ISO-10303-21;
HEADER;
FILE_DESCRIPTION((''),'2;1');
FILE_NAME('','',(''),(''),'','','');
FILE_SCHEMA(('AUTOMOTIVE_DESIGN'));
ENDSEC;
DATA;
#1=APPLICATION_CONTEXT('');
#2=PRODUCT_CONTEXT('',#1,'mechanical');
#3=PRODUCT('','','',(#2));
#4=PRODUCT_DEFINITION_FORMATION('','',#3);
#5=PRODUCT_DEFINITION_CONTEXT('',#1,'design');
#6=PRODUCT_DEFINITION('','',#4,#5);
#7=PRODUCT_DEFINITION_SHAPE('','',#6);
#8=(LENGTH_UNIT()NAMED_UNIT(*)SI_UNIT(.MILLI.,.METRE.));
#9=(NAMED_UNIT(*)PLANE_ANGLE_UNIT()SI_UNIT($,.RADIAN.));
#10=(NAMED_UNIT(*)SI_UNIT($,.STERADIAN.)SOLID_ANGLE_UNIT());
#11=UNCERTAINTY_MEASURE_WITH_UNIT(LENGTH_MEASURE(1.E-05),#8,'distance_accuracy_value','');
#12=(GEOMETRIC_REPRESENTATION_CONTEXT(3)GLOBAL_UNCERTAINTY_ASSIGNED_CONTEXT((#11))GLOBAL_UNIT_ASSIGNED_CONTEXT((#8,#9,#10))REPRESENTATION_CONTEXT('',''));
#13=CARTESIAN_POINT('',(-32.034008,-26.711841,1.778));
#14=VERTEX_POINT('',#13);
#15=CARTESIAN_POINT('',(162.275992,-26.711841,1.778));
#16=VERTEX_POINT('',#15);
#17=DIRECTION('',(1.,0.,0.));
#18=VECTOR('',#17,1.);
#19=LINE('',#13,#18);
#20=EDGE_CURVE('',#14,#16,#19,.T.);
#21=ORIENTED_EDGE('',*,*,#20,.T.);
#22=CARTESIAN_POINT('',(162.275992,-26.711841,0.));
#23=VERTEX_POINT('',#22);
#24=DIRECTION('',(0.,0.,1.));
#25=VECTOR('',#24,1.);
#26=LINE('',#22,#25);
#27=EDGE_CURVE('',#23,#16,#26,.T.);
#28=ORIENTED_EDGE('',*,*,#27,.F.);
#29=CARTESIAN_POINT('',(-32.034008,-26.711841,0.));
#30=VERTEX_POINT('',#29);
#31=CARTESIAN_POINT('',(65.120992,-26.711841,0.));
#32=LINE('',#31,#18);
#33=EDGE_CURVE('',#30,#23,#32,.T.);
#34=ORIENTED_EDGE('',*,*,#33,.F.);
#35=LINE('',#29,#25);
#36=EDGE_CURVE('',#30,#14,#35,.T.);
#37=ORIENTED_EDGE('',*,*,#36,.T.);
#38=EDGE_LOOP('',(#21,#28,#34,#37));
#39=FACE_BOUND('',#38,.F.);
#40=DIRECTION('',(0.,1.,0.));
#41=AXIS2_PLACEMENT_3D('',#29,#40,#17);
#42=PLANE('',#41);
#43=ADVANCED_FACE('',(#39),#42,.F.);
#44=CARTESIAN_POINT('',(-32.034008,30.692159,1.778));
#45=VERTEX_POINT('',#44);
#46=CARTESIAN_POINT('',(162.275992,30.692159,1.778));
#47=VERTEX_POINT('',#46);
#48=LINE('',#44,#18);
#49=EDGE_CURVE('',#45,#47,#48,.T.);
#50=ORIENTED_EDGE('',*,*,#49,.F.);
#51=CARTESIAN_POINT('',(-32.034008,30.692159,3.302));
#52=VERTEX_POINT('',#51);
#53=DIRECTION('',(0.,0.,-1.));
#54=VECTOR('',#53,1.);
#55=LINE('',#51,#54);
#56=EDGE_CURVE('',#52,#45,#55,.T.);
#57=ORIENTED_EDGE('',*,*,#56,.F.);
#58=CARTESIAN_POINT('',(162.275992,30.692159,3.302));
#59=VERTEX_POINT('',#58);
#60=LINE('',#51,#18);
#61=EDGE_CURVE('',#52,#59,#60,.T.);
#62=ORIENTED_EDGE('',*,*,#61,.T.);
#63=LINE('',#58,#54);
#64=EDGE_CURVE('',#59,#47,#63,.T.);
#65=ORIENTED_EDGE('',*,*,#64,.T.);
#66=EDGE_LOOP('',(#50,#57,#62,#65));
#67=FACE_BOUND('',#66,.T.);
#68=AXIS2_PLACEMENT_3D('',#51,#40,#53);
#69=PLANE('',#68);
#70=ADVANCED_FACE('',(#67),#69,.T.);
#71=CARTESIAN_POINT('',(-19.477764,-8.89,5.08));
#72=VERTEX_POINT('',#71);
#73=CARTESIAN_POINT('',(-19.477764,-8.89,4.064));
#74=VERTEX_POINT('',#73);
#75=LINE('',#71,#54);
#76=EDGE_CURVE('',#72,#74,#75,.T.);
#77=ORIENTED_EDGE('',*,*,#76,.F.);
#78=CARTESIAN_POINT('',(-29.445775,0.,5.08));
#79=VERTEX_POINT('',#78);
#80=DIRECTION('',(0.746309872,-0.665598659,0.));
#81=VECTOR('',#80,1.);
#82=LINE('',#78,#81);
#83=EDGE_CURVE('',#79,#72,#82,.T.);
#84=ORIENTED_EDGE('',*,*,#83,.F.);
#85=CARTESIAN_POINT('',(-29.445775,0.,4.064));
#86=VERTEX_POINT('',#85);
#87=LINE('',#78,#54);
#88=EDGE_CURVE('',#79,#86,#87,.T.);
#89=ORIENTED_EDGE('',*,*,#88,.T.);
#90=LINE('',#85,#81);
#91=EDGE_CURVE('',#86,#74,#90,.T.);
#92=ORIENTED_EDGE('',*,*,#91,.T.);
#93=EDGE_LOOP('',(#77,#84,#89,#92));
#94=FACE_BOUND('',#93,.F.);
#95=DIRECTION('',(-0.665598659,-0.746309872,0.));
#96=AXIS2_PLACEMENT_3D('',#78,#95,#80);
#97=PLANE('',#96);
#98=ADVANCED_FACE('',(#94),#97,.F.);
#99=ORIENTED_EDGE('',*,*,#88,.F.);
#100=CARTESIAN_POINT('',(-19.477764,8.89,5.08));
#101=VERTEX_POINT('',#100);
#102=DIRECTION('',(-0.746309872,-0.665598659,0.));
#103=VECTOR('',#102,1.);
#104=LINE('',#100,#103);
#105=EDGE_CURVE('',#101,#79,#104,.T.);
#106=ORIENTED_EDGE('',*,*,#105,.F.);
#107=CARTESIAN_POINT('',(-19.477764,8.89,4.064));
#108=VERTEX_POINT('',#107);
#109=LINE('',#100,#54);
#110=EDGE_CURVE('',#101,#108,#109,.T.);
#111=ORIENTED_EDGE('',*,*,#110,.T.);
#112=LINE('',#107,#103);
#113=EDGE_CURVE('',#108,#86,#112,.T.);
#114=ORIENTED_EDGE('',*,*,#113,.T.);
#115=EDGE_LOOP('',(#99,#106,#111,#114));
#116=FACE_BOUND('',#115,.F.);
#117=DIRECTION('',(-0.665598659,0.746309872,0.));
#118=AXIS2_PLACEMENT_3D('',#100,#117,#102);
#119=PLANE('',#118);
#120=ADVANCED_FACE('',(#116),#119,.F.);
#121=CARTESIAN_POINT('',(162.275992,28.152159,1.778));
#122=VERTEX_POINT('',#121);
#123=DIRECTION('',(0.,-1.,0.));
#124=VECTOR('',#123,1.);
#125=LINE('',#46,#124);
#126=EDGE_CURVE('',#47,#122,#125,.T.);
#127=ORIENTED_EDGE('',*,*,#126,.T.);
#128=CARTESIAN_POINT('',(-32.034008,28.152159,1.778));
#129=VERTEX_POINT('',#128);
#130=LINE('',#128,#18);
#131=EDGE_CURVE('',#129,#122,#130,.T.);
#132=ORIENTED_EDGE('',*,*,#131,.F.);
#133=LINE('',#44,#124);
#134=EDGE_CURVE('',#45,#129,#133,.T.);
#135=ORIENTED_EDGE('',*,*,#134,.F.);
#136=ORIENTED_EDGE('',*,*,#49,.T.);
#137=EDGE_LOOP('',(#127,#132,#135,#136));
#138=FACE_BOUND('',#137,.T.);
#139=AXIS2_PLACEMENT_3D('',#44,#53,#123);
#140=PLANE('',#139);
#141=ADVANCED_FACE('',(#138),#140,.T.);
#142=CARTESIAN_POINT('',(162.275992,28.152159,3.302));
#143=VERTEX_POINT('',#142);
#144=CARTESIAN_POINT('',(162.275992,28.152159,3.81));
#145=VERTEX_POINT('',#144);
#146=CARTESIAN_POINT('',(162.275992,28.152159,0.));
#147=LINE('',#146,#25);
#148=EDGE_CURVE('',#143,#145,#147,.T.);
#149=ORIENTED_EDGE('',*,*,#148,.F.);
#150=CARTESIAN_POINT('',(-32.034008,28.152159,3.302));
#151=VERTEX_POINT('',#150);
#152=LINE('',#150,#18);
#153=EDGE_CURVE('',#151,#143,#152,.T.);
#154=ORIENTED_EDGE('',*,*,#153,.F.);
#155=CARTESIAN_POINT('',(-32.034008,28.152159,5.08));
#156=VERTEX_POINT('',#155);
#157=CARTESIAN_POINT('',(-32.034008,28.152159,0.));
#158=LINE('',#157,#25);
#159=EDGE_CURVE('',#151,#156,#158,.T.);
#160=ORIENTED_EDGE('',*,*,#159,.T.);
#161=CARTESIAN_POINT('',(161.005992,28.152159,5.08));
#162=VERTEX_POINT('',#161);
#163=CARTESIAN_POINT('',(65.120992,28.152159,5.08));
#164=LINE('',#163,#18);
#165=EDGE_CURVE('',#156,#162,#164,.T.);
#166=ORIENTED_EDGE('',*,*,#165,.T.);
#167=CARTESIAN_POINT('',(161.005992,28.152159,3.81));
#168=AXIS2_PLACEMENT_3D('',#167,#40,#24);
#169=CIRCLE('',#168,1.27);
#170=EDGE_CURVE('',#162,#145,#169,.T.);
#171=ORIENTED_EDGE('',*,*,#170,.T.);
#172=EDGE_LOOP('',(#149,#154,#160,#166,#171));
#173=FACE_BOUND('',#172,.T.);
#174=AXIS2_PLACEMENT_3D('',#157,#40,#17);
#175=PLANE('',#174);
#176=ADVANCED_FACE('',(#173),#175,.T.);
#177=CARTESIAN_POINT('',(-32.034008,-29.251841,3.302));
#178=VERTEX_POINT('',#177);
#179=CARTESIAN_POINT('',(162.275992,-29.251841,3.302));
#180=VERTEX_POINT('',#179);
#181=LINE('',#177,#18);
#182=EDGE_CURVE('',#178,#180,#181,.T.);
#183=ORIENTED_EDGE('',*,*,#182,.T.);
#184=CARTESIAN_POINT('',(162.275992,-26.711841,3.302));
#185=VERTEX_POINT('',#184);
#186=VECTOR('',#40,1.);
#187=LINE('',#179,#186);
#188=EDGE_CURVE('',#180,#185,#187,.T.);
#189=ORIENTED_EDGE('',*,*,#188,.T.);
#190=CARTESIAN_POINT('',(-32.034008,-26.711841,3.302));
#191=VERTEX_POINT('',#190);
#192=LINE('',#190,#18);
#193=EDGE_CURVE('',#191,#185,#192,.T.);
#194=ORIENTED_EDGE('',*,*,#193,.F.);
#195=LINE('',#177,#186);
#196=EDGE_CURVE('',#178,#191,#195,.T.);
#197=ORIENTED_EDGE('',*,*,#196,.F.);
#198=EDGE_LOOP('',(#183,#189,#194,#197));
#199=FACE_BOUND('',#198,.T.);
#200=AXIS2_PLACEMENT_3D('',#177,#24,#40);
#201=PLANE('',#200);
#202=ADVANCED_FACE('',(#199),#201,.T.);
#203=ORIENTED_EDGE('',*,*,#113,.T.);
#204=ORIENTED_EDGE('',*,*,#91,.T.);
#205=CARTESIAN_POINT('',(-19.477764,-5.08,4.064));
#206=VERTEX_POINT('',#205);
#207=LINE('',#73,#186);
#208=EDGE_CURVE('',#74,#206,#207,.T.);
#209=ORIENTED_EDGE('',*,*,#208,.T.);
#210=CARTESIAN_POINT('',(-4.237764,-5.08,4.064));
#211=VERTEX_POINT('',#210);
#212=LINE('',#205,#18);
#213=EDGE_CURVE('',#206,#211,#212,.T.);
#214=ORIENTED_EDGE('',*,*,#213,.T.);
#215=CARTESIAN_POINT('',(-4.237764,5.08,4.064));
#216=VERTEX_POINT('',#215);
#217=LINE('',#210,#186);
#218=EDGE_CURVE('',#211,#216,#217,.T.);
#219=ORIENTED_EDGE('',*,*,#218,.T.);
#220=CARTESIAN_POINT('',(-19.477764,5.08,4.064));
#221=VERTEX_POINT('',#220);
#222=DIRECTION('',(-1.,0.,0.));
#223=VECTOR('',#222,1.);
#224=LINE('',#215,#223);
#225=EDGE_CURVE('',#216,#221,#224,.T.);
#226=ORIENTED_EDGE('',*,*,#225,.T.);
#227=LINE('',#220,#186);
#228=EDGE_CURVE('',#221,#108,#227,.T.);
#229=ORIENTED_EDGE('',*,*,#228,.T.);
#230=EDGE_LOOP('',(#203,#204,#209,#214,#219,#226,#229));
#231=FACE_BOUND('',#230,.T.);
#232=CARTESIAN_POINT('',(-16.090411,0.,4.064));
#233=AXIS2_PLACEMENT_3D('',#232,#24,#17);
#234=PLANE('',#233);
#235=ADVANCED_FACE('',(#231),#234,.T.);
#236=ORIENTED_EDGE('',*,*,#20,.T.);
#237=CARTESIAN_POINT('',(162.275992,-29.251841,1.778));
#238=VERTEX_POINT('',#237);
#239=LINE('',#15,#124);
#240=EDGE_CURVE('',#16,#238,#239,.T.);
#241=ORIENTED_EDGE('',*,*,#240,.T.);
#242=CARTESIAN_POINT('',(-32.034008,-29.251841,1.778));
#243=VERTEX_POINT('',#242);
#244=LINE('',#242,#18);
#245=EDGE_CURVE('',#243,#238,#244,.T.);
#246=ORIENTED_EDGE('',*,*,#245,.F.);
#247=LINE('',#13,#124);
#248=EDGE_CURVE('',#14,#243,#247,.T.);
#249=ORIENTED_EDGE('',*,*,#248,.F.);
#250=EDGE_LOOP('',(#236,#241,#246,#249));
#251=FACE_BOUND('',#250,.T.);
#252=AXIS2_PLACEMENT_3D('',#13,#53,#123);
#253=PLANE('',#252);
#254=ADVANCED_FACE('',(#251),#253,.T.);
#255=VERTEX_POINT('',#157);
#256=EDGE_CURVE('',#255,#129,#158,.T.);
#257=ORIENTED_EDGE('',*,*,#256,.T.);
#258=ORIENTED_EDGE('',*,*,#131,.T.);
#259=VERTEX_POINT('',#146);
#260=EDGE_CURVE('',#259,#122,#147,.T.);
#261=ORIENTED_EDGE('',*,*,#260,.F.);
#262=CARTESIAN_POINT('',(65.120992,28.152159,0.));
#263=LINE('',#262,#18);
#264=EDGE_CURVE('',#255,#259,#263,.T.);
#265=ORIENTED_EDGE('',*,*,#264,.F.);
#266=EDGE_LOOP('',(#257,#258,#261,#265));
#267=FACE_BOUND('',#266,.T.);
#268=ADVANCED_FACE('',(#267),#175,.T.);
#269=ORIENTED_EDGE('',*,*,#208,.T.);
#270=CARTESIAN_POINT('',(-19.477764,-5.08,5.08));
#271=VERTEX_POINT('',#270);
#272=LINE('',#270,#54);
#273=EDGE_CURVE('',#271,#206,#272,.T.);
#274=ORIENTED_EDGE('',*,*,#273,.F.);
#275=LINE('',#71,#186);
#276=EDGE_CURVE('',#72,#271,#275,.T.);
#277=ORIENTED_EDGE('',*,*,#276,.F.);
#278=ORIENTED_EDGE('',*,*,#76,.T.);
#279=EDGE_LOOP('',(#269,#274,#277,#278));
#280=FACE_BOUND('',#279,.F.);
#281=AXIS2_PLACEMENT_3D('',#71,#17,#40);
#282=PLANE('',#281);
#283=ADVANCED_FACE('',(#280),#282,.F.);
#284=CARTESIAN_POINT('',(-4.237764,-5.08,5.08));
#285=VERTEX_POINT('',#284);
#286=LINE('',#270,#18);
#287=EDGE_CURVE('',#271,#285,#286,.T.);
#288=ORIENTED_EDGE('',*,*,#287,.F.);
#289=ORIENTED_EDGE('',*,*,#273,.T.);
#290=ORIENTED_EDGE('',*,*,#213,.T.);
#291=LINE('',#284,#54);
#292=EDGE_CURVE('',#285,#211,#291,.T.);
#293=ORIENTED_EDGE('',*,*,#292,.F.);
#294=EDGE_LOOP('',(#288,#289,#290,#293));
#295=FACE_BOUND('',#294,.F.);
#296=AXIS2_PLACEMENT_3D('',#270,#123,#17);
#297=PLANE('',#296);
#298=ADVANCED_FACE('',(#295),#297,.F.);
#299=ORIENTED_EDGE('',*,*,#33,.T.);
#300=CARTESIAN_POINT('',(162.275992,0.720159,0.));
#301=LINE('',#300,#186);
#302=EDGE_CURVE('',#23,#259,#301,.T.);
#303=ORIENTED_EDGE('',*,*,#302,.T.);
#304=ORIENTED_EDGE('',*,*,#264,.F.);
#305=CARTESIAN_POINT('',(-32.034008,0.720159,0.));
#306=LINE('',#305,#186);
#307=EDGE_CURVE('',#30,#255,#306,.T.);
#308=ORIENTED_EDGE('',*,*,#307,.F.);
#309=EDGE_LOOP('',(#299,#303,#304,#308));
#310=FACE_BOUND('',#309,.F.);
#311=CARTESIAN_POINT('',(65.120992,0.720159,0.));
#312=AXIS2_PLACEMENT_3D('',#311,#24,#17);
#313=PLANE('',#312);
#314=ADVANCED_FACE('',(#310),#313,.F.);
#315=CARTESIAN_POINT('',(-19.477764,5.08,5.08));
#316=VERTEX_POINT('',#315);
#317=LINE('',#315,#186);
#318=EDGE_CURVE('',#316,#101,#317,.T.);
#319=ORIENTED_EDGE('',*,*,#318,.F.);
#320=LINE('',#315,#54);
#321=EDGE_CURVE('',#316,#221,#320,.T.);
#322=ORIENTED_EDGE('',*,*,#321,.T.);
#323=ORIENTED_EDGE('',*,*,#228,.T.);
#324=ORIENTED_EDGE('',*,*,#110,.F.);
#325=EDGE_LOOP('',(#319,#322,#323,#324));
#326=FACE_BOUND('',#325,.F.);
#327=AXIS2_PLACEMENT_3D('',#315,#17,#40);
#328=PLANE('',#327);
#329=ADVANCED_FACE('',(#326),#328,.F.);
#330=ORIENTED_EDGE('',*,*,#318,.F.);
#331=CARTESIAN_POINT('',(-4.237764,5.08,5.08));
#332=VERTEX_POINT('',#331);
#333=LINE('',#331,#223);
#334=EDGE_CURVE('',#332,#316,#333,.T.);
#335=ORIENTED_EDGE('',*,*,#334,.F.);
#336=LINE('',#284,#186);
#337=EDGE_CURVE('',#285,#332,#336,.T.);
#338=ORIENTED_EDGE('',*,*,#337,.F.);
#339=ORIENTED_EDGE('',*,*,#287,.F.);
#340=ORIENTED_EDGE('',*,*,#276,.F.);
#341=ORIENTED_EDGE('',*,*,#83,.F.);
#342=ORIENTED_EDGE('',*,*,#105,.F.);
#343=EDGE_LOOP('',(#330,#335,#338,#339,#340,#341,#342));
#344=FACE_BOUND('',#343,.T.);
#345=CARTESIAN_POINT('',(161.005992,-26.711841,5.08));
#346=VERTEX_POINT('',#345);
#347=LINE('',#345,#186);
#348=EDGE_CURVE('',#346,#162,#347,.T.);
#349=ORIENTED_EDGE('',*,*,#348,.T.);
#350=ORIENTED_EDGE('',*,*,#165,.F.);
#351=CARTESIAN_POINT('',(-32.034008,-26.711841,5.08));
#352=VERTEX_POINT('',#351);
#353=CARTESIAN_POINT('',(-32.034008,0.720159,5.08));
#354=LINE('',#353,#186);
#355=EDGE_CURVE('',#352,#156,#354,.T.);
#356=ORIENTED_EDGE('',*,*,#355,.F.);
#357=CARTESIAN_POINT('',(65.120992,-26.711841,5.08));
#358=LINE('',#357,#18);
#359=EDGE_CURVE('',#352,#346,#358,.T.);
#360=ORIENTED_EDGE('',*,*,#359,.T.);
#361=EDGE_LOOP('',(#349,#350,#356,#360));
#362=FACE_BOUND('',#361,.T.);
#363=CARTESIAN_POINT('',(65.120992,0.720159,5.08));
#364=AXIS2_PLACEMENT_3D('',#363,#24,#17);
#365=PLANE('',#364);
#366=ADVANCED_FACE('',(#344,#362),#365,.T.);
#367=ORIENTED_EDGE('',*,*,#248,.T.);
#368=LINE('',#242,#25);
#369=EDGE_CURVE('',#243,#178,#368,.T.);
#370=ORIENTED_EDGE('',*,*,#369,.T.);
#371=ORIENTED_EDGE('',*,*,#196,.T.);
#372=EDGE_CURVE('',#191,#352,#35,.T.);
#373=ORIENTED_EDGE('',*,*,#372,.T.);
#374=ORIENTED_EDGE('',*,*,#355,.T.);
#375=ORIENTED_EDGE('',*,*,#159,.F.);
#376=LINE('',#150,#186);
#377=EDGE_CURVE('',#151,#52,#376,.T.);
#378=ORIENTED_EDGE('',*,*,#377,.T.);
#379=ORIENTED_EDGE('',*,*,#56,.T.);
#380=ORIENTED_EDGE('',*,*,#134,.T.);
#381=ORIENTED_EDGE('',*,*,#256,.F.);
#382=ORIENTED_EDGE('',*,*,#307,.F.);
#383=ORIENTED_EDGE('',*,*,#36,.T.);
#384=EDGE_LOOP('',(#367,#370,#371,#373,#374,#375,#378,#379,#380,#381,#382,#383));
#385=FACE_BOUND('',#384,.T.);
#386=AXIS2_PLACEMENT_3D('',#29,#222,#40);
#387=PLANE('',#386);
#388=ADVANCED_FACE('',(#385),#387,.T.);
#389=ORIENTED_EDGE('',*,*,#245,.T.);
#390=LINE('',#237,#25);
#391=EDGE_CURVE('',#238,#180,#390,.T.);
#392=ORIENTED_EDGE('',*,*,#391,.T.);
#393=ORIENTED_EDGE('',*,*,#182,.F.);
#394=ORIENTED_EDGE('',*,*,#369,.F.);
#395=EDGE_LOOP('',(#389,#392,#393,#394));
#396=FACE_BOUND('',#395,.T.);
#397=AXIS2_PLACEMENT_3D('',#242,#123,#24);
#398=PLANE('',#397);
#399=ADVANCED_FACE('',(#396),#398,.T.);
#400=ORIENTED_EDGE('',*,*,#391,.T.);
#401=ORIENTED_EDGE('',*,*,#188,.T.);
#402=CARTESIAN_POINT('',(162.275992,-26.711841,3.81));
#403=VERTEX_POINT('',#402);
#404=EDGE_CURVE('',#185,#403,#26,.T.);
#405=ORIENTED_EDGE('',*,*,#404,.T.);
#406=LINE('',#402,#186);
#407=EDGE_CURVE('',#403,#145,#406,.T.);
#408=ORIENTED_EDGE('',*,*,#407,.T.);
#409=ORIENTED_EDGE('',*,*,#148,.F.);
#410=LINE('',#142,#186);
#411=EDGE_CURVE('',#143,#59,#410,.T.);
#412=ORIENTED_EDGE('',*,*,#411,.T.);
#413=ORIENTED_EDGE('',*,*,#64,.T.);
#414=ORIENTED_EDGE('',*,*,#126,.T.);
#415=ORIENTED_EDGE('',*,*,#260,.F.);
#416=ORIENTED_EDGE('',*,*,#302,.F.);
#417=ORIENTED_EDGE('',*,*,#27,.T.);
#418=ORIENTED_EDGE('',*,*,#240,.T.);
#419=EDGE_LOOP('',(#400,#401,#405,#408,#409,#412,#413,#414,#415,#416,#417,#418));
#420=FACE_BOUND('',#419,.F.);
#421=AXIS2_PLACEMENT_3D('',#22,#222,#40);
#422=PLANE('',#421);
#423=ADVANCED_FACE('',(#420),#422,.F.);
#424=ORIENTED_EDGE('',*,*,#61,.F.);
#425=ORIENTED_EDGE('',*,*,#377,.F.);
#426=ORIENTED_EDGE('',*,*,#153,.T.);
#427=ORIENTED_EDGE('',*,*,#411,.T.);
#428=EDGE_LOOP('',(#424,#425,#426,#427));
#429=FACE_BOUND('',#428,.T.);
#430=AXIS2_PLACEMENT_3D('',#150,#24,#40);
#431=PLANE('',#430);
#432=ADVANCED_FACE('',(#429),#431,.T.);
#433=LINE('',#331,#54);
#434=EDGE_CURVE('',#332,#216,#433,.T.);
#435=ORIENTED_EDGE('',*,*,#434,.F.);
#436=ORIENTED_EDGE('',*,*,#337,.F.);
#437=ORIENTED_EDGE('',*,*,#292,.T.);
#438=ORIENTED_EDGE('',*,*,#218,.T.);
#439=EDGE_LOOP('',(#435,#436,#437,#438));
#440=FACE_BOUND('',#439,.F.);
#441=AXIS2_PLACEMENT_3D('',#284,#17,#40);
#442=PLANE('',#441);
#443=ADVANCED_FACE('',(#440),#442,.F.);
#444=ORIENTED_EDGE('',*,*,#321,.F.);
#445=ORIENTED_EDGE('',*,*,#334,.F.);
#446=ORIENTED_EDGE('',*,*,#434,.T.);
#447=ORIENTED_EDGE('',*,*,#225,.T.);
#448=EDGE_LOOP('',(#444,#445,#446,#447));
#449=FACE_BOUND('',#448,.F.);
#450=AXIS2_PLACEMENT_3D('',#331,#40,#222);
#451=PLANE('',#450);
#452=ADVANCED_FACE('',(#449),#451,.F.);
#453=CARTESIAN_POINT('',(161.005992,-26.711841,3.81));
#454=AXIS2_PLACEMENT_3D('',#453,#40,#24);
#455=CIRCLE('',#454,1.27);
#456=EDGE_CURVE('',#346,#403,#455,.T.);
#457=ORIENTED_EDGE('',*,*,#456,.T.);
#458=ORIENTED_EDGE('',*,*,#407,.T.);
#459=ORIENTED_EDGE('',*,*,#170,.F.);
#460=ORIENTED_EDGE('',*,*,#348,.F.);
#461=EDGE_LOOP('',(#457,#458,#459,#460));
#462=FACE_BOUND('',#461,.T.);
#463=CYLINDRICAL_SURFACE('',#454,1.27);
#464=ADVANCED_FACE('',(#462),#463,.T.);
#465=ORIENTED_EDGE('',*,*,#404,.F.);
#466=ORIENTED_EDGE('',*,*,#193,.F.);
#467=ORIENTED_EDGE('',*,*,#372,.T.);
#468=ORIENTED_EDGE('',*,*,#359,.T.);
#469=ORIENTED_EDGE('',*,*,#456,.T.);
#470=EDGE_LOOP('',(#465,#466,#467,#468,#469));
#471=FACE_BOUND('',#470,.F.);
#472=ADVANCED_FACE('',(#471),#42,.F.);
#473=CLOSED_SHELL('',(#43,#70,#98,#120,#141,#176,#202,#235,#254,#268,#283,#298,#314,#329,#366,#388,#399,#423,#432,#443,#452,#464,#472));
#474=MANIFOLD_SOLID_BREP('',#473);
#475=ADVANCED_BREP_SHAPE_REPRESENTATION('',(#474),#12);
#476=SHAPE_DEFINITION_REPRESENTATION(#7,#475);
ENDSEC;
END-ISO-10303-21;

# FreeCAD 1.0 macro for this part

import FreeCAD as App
import Part
import Sketcher
Q = App.Units.Quantity


def edges_at(feature, points):
    """Names of the edges that pass closest to the given points."""
    edges = feature.Shape.Edges
    near = lambda p: min(range(len(edges)), key=lambda i: edges[i].distToShape(Part.Vertex(*p))[0])
    return sorted({f"Edge{near(p) + 1}" for p in points})


def add_polygon(sketch, points):
    """Adds a closed chain of lines whose ends are joined by coincident constraints."""
    first, n = sketch.GeometryCount, len(points)
    for a, b in zip(points, points[1:] + points[:1]):
        sketch.addGeometry(Part.LineSegment(App.Vector(*a, 0), App.Vector(*b, 0)), False)
    for i in range(n):
        sketch.addConstraint(Sketcher.Constraint("Coincident", first + i, 2, first + (i + 1) % n, 1))

doc = App.newDocument("Part")
body = doc.addObject("PartDesign::Body", "Body")

# Sketch on XY plane
sketch1 = body.newObject("Sketcher::SketchObject", "Sketch")
sketch1.AttachmentSupport = (doc.getObject("XY_Plane"), [""])
sketch1.MapMode = "FlatFace"
add_polygon(sketch1, [(-32, 28), (-32, -27), (162, -27), (162, 28)])  # lines 0-3
sketch1.addConstraint(Sketcher.Constraint("Vertical", 0))
sketch1.addConstraint(Sketcher.Constraint("Horizontal", 1))
sketch1.addConstraint(Sketcher.Constraint("Vertical", 2))
sketch1.addConstraint(Sketcher.Constraint("Horizontal", 3))
sketch1.addConstraint(Sketcher.Constraint("DistanceX", 1, 1, 1, 2, Q("7.65 in")))
sketch1.addConstraint(Sketcher.Constraint("DistanceY", 0, 2, 0, 1, Q("2.16 in")))
sketch1.addConstraint(Sketcher.Constraint("DistanceY", 0, 2, -1, 1, 26.711841))
sketch1.addConstraint(Sketcher.Constraint("DistanceX", -1, 1, 1, 2, 162.275992))
pad1 = body.newObject("PartDesign::Pad", "Pad")
pad1.Profile = sketch1
pad1.Length = Q("0.2 in")

# Sketch on YZ plane
sketch2 = body.newObject("Sketcher::SketchObject", "Sketch001")
sketch2.AttachmentSupport = (doc.getObject("YZ_Plane"), [""])
sketch2.MapMode = "FlatFace"
sketch2.AttachmentOffset = App.Placement(App.Vector(0, 0, -32.034008), App.Rotation())
add_polygon(sketch2, [(28.2, 1.8), (28.2, 3.3), (30.7, 3.3), (30.7, 1.8)])  # lines 0-3
add_polygon(sketch2, [(-29.3, 3.3), (-26.7, 3.3), (-26.7, 1.8), (-29.3, 1.8)])  # lines 4-7
sketch2.addConstraint(Sketcher.Constraint("Vertical", 0))
sketch2.addConstraint(Sketcher.Constraint("Horizontal", 1))
sketch2.addConstraint(Sketcher.Constraint("Vertical", 2))
sketch2.addConstraint(Sketcher.Constraint("Horizontal", 3))
sketch2.addConstraint(Sketcher.Constraint("Horizontal", 4))
sketch2.addConstraint(Sketcher.Constraint("Vertical", 5))
sketch2.addConstraint(Sketcher.Constraint("Horizontal", 6))
sketch2.addConstraint(Sketcher.Constraint("Vertical", 7))
sketch2.addConstraint(Sketcher.Constraint("Horizontal", 1, 2, 4, 2))
sketch2.addConstraint(Sketcher.Constraint("Horizontal", 3, 2, 5, 2))
sketch2.addConstraint(Sketcher.Constraint("Equal", 3, 4))
sketch2.addConstraint(Sketcher.Constraint("DistanceX", 1, 1, 1, 2, Q("0.1 in")))
sketch2.addConstraint(Sketcher.Constraint("DistanceY", 0, 1, 0, 2, Q("0.06 in")))
sketch2.addConstraint(Sketcher.Constraint("DistanceY", -1, 1, 0, 2, Q("0.13 in")))
sketch2.addConstraint(Sketcher.Constraint("DistanceX", 4, 2, 0, 2, Q("2.16 in")))
sketch2.addConstraint(Sketcher.Constraint("DistanceX", -1, 1, 0, 2, 28.152159))
pad2 = body.newObject("PartDesign::Pad", "Pad001")
pad2.Profile = sketch2
pad2.Type = "UpToLast"
doc.recompute()

fillet = body.newObject("PartDesign::Fillet", "Fillet")
fillet.Base = (pad2, edges_at(pad2, [(162.276, 0.72, 5.08)]))
fillet.Radius = Q("0.05 in")

# Sketch on XY plane
sketch3 = body.newObject("Sketcher::SketchObject", "Sketch002")
sketch3.AttachmentSupport = (doc.getObject("XY_Plane"), [""])
sketch3.MapMode = "FlatFace"
sketch3.AttachmentOffset = App.Placement(App.Vector(0, 0, 0.2 * 25.4), App.Rotation())
add_polygon(sketch3, [(-4.2, -5.1), (-4.2, 5.1), (-19.5, 5.1), (-19.5, 8.9), (-29.4, 0), (-19.5, -8.9), (-19.5, -5.1)])  # lines 0-6
sketch3.addConstraint(Sketcher.Constraint("Vertical", 0))
sketch3.addConstraint(Sketcher.Constraint("Horizontal", 1))
sketch3.addConstraint(Sketcher.Constraint("Vertical", 2))
sketch3.addConstraint(Sketcher.Constraint("Vertical", 5))
sketch3.addConstraint(Sketcher.Constraint("Horizontal", 6))
sketch3.addConstraint(Sketcher.Constraint("Symmetric", 2, 2, 4, 2, -1))
sketch3.addConstraint(Sketcher.Constraint("PointOnObject", 3, 2, -1))
sketch3.addConstraint(Sketcher.Constraint("Equal", 2, 5))
sketch3.addConstraint(Sketcher.Constraint("DistanceX", 1, 2, 1, 1, Q("0.6 in")))
sketch3.addConstraint(Sketcher.Constraint("DistanceY", 0, 1, 0, 2, Q("0.4 in")))
sketch3.addConstraint(Sketcher.Constraint("DistanceY", 2, 1, 2, 2, Q("0.15 in")))
sketch3.addConstraint(Sketcher.Constraint("DistanceX", 3, 2, 1, 2, 9.968011))
sketch3.addConstraint(Sketcher.Constraint("DistanceX", 0, 2, -1, 1, 4.237764))
pocket1 = body.newObject("PartDesign::Pocket", "Pocket")
pocket1.Profile = sketch3
pocket1.Length = Q("0.04 in")

doc.recompute()
